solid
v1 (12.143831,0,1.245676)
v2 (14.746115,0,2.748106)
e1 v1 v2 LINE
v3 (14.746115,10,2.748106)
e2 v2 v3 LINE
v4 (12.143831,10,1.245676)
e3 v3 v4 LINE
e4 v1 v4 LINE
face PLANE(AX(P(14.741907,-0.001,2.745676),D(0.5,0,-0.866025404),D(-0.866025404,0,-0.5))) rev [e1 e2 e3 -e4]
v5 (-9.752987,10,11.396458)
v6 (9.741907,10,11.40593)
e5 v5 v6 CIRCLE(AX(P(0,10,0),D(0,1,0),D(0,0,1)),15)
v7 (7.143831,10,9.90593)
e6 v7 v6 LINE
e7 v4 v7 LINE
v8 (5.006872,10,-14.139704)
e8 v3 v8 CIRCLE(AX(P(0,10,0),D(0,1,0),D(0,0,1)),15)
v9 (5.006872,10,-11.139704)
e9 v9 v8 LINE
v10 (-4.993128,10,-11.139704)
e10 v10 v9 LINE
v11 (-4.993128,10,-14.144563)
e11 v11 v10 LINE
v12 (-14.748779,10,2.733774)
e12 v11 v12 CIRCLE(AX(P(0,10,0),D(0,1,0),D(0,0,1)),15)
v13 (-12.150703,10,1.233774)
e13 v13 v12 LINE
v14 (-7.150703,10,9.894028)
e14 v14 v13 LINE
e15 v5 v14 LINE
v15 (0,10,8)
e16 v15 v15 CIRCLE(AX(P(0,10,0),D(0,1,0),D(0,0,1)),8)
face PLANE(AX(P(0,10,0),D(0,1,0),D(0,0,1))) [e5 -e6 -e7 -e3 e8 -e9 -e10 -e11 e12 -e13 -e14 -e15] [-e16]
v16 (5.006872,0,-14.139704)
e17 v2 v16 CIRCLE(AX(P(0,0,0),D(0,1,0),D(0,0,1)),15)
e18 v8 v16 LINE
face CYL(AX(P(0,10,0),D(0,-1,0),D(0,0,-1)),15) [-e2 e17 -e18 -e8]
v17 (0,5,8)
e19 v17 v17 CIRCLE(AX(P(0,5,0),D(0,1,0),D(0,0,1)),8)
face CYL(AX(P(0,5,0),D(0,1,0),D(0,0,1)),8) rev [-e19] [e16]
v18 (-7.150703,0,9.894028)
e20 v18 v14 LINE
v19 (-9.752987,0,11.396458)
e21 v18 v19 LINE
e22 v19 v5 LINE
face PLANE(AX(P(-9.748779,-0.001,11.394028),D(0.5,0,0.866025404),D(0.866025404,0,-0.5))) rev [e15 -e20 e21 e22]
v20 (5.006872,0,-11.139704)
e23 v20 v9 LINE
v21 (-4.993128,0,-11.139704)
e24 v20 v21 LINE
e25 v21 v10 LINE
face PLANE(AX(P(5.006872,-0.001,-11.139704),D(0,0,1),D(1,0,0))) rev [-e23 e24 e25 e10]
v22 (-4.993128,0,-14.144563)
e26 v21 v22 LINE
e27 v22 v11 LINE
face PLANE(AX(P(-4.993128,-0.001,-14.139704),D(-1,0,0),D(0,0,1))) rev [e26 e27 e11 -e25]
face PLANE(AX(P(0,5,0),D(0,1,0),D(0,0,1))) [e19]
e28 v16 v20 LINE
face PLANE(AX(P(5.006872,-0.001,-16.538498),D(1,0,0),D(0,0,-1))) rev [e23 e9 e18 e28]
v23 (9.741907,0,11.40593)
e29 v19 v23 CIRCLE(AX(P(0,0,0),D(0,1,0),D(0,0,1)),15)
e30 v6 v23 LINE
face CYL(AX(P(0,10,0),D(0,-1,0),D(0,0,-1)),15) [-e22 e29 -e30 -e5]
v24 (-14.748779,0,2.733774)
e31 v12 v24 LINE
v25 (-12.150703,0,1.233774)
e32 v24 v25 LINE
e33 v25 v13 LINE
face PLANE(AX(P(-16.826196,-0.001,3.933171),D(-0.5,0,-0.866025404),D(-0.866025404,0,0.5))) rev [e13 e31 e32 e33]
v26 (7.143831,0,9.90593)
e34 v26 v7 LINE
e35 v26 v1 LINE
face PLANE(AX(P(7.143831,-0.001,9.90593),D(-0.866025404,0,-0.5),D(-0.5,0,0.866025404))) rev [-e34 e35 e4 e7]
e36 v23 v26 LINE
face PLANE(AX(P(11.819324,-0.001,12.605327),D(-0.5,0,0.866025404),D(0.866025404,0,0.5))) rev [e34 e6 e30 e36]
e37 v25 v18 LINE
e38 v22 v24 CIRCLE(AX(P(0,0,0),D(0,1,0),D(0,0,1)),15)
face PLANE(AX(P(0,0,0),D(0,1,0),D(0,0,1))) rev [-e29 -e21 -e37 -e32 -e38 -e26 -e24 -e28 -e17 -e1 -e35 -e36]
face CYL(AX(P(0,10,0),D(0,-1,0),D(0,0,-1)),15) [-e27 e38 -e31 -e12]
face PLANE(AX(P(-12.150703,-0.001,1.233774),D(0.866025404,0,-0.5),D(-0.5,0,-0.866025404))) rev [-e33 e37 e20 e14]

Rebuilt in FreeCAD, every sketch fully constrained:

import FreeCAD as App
import Part
import Sketcher
from FreeCAD import Vector
Q = App.Units.Quantity

doc = App.newDocument("Part")
body = doc.addObject("PartDesign::Body", "Body")

# Sketch on XZ plane
sketch1 = body.newObject("Sketcher::SketchObject", "Sketch")
sketch1.AttachmentSupport = (doc.getObject("XZ_Plane"), [""])
sketch1.MapMode = "FlatFace"
sketch1.addGeometry(Part.Circle(Vector(0, 0, 0), Vector(0, 0, 1), 15), False)
sketch1.addConstraint([
    Sketcher.Constraint("Coincident", 0, 3, -1, 1),
    Sketcher.Constraint("Diameter", 0, 30.0),
])
pad1 = body.newObject("PartDesign::Pad", "Pad")
pad1.Profile = sketch1
pad1.Length = 10
pad1.Reversed = True

# Sketch on XZ plane
sketch2 = body.newObject("Sketcher::SketchObject", "Sketch001")
sketch2.AttachmentSupport = (doc.getObject("XZ_Plane"), [""])
sketch2.MapMode = "FlatFace"
sketch2.AttachmentOffset = App.Placement(Vector(0, 0, -10), App.Rotation())
sketch2.addGeometry(Part.Circle(Vector(0, 0, 0), Vector(0, 0, 1), 8), False)
sketch2.addConstraint([
    Sketcher.Constraint("Coincident", 0, 3, -1, 1),
    Sketcher.Constraint("Diameter", 0, 16.0),
])
pocket1 = body.newObject("PartDesign::Pocket", "Pocket")
pocket1.Profile = sketch2
pocket1.Length = 5
pocket1.Reversed = True

# Sketch on XZ plane
sketch3 = body.newObject("Sketcher::SketchObject", "Sketch002")
sketch3.AttachmentSupport = (doc.getObject("XZ_Plane"), [""])
sketch3.MapMode = "FlatFace"
sketch3.AttachmentOffset = App.Placement(Vector(0, 0, -10), App.Rotation())
sketch3.addGeometry([
    Part.LineSegment(Vector(-5, -17, 0), Vector(-5, -11, 0)),
    Part.LineSegment(Vector(-5, -11, 0), Vector(5, -11, 0)),
    Part.LineSegment(Vector(5, -11, 0), Vector(5, -17, 0)),
    Part.LineSegment(Vector(5, -17, 0), Vector(-5, -17, 0)),
], False)
sketch3.addConstraint([
    Sketcher.Constraint("Coincident", 0, 2, 1, 1),
    Sketcher.Constraint("Coincident", 1, 2, 2, 1),
    Sketcher.Constraint("Coincident", 2, 2, 3, 1),
    Sketcher.Constraint("Coincident", 3, 2, 0, 1),
    Sketcher.Constraint("Vertical", 0),
    Sketcher.Constraint("Horizontal", 1),
    Sketcher.Constraint("Vertical", 2),
    Sketcher.Constraint("Horizontal", 3),
    Sketcher.Constraint("DistanceX", 1, 1, 1, 2, 10.0),
    Sketcher.Constraint("DistanceY", 2, 2, -1, 1, 16.538498),
    Sketcher.Constraint("DistanceY", 0, 1, 0, 2, 5.398794),
    Sketcher.Constraint("DistanceX", 0, 2, -1, 1, 4.993128),
])
pocket2 = body.newObject("PartDesign::Pocket", "Pocket001")
pocket2.Profile = sketch3
pocket2.Type = "UpToFirst"
pocket2.Reversed = True

# Sketch on XZ plane
sketch4 = body.newObject("Sketcher::SketchObject", "Sketch003")
sketch4.AttachmentSupport = (doc.getObject("XZ_Plane"), [""])
sketch4.MapMode = "FlatFace"
sketch4.AttachmentOffset = App.Placement(Vector(0, 0, -10), App.Rotation())
sketch4.addGeometry([
    Part.LineSegment(Vector(7.1, 9.9, 0), Vector(9.7, 11.4, 0)),  # 0
    Part.LineSegment(Vector(9.7, 11.4, 0), Vector(11.8, 12.6, 0)),  # 1
    Part.LineSegment(Vector(11.8, 12.6, 0), Vector(16.8, 3.9, 0)),  # 2
    Part.LineSegment(Vector(16.8, 3.9, 0), Vector(14.7, 2.7, 0)),  # 3
    Part.LineSegment(Vector(14.7, 2.7, 0), Vector(12.1, 1.2, 0)),  # 4
    Part.LineSegment(Vector(12.1, 1.2, 0), Vector(7.1, 9.9, 0)),  # 5
], False)
sketch4.addConstraint([
    Sketcher.Constraint("Coincident", 0, 2, 1, 1),
    Sketcher.Constraint("Coincident", 1, 2, 2, 1),
    Sketcher.Constraint("Coincident", 2, 2, 3, 1),
    Sketcher.Constraint("Coincident", 3, 2, 4, 1),
    Sketcher.Constraint("Coincident", 4, 2, 5, 1),
    Sketcher.Constraint("Coincident", 5, 2, 0, 1),
    Sketcher.Constraint("Parallel", 0, 1),
    Sketcher.Constraint("Perpendicular", 1, 2),
    Sketcher.Constraint("Perpendicular", 2, 3),
    Sketcher.Constraint("Parallel", 3, 4),
    Sketcher.Constraint("Perpendicular", 4, 5),
    Sketcher.Constraint("Equal", 1, 3),
    Sketcher.Constraint("Angle", 0, Q("30 deg")),
    Sketcher.Constraint("Distance", 0, 3.0),
    Sketcher.Constraint("Distance", 2, 10.0),
    Sketcher.Constraint("DistanceY", -1, 1, 0, 2, 11.40593),
    Sketcher.Constraint("DistanceX", -1, 1, 4, 2, 12.143831),
    Sketcher.Constraint("DistanceY", 3, 2, 1, 2, 9.859651),
])
pocket3 = body.newObject("PartDesign::Pocket", "Pocket002")
pocket3.Profile = sketch4
pocket3.Type = "UpToFirst"
pocket3.Reversed = True

# Sketch on XZ plane
sketch5 = body.newObject("Sketcher::SketchObject", "Sketch004")
sketch5.AttachmentSupport = (doc.getObject("XZ_Plane"), [""])
sketch5.MapMode = "FlatFace"
sketch5.AttachmentOffset = App.Placement(Vector(0, 0, -10), App.Rotation())
sketch5.addGeometry([
    Part.LineSegment(Vector(-12.2, 1.2, 0), Vector(-14.7, 2.7, 0)),  # 0
    Part.LineSegment(Vector(-14.7, 2.7, 0), Vector(-16.8, 3.9, 0)),  # 1
    Part.LineSegment(Vector(-16.8, 3.9, 0), Vector(-11.8, 12.6, 0)),  # 2
    Part.LineSegment(Vector(-11.8, 12.6, 0), Vector(-9.7, 11.4, 0)),  # 3
    Part.LineSegment(Vector(-9.7, 11.4, 0), Vector(-7.2, 9.9, 0)),  # 4
    Part.LineSegment(Vector(-7.2, 9.9, 0), Vector(-12.2, 1.2, 0)),  # 5
], False)
sketch5.addConstraint([
    Sketcher.Constraint("Coincident", 0, 2, 1, 1),
    Sketcher.Constraint("Coincident", 1, 2, 2, 1),
    Sketcher.Constraint("Coincident", 2, 2, 3, 1),
    Sketcher.Constraint("Coincident", 3, 2, 4, 1),
    Sketcher.Constraint("Coincident", 4, 2, 5, 1),
    Sketcher.Constraint("Coincident", 5, 2, 0, 1),
    Sketcher.Constraint("Parallel", 0, 1),
    Sketcher.Constraint("Perpendicular", 1, 2),
    Sketcher.Constraint("Perpendicular", 2, 3),
    Sketcher.Constraint("Parallel", 3, 4),
    Sketcher.Constraint("Perpendicular", 4, 5),
    Sketcher.Constraint("Equal", 1, 3),
    Sketcher.Constraint("Angle", 0, Q("150 deg")),
    Sketcher.Constraint("Distance", 0, 3.0),
    Sketcher.Constraint("Distance", 2, 10.0),
    Sketcher.Constraint("DistanceX", 0, 2, -1, 1, 14.748779),
    Sketcher.Constraint("DistanceY", -1, 1, 1, 2, 3.933171),
    Sketcher.Constraint("DistanceY", -1, 1, 3, 2, 11.394028),
])
pocket4 = body.newObject("PartDesign::Pocket", "Pocket003")
pocket4.Profile = sketch5
pocket4.Type = "UpToFirst"
pocket4.Reversed = True

doc.recompute()
